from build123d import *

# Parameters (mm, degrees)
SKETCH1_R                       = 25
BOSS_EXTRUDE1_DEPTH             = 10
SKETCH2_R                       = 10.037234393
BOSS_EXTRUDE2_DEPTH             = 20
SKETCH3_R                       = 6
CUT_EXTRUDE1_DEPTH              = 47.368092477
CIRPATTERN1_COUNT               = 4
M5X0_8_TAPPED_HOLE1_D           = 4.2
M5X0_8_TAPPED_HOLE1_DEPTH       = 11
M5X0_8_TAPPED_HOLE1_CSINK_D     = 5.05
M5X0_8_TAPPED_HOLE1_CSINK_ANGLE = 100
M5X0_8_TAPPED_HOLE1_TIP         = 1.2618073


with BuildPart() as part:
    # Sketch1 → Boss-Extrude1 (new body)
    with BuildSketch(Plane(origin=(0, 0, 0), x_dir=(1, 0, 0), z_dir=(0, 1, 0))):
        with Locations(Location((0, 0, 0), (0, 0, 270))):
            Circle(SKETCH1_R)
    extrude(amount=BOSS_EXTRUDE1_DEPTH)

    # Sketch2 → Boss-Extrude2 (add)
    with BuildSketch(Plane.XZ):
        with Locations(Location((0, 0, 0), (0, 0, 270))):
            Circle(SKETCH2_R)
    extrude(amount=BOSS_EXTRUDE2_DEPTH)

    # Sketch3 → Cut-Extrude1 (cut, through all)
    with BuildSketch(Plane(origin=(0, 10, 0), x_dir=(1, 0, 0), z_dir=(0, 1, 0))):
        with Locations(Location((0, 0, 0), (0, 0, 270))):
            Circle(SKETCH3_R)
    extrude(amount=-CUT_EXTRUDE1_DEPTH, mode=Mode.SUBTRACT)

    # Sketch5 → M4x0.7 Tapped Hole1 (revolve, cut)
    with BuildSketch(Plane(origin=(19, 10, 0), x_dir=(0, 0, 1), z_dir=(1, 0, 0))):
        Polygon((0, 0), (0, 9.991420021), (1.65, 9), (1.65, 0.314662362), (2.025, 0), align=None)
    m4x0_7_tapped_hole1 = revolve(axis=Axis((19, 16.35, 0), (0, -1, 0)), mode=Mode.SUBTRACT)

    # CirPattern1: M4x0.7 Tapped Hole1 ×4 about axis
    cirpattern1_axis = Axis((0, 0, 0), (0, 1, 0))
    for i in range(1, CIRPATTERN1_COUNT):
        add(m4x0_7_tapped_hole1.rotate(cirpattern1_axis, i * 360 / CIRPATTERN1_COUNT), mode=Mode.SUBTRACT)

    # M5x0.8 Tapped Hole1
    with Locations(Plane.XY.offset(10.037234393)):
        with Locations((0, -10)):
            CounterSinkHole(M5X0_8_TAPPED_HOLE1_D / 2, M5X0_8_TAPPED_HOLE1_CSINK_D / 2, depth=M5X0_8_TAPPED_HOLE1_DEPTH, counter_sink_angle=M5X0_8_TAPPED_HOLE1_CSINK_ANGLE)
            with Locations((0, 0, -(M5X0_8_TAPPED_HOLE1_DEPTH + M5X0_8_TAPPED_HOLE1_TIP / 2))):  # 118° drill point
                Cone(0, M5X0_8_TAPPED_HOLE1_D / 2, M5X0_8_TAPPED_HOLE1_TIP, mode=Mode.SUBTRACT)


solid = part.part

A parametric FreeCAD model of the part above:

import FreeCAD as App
import Part
import Sketcher
Q = App.Units.Quantity

doc = App.newDocument("Part")
params = doc.addObject("Spreadsheet::Sheet", "Params")
for row, (alias, value) in enumerate([
    ("sketch1_diameter", "50 mm"),
    ("pad1_length", "10 mm"),
    ("pad2_length", "20 mm"),
    ("sketch3_diameter", "12 mm"),
    ("groove_angle", "360 deg"),
    ("sketch5_diameter", "4.2 mm"),
    ("hole_diameter", "4.2 mm"),
    ("hole_depth", "11 mm"),
    ("hole_csink_diameter", "5.05 mm"),
], start=1):
    params.set(f"A{row}", alias)
    params.set(f"B{row}", "=" + value)
    params.setAlias(f"B{row}", alias)

body = doc.addObject("PartDesign::Body", "Body")

sketch1 = doc.addObject("Sketcher::SketchObject", "Sketch")
body.addObject(sketch1)
sketch1.AttachmentSupport = (doc.XZ_Plane, [""])
sketch1.MapMode = "FlatFace"
sketch1.addGeometry(Part.Circle(App.Vector(0, 0, 0), App.Vector(0, 0, 1), 25), False)
sketch1.addConstraint([
    Sketcher.Constraint("Coincident", 0, 3, -1, 1),
    Sketcher.Constraint("Diameter", 0, 50.0),
])
sketch1.setExpression("Constraints[1]", "Params.sketch1_diameter")
pad1 = doc.addObject("PartDesign::Pad", "Pad")
body.addObject(pad1)
pad1.Profile = sketch1
pad1.setExpression("Length", "Params.pad1_length")
pad1.Reversed = True

sketch2 = doc.addObject("Sketcher::SketchObject", "Sketch001")
body.addObject(sketch2)
sketch2.AttachmentSupport = (doc.XZ_Plane, [""])
sketch2.MapMode = "FlatFace"
sketch2.addGeometry(Part.Circle(App.Vector(0, 0, 0), App.Vector(0, 0, 1), 10.037234), False)
sketch2.addConstraint([
    Sketcher.Constraint("Coincident", 0, 3, -1, 1),
    Sketcher.Constraint("Diameter", 0, 20.074469),
])
pad2 = doc.addObject("PartDesign::Pad", "Pad001")
body.addObject(pad2)
pad2.Profile = sketch2
pad2.setExpression("Length", "Params.pad2_length")

sketch3 = doc.addObject("Sketcher::SketchObject", "Sketch002")
body.addObject(sketch3)
sketch3.AttachmentSupport = (doc.XZ_Plane, [""])
sketch3.MapMode = "FlatFace"
sketch3.AttachmentOffset = App.Placement(App.Vector(0, 0, -10), App.Rotation())
sketch3.addGeometry(Part.Circle(App.Vector(0, 0, 0), App.Vector(0, 0, 1), 6), False)
sketch3.addConstraint([
    Sketcher.Constraint("Coincident", 0, 3, -1, 1),
    Sketcher.Constraint("Diameter", 0, 12.0),
])
sketch3.setExpression("Constraints[1]", "Params.sketch3_diameter")
pocket1 = doc.addObject("PartDesign::Pocket", "Pocket")
body.addObject(pocket1)
pocket1.Profile = sketch3
pocket1.Type = "ThroughAll"
pocket1.Reversed = True

sketch4 = doc.addObject("Sketcher::SketchObject", "Sketch003")
body.addObject(sketch4)
sketch4.AttachmentSupport = (doc.YZ_Plane, [""])
sketch4.MapMode = "FlatFace"
sketch4.AttachmentOffset = App.Placement(App.Vector(0, 0, 19), App.Rotation())
sketch4.addGeometry([
    Part.LineSegment(App.Vector(0.00858, 0, 0), App.Vector(10, 0, 0)),
    Part.LineSegment(App.Vector(10, 0, 0), App.Vector(10, 2.025, 0)),
    Part.LineSegment(App.Vector(10, 2.025, 0), App.Vector(9.685338, 1.65, 0)),
    Part.LineSegment(App.Vector(9.685338, 1.65, 0), App.Vector(1, 1.65, 0)),
    Part.LineSegment(App.Vector(1, 1.65, 0), App.Vector(0.00858, 0, 0)),
], False)
sketch4.addConstraint([
    Sketcher.Constraint("Coincident", 0, 2, 1, 1),
    Sketcher.Constraint("Coincident", 1, 2, 2, 1),
    Sketcher.Constraint("Coincident", 2, 2, 3, 1),
    Sketcher.Constraint("Coincident", 3, 2, 4, 1),
    Sketcher.Constraint("Coincident", 4, 2, 0, 1),
    Sketcher.Constraint("Horizontal", 0),
    Sketcher.Constraint("Vertical", 1),
    Sketcher.Constraint("Horizontal", 3),
    Sketcher.Constraint("PointOnObject", 0, 2, -1),
    Sketcher.Constraint("Angle", 2, Q("-130 deg")),
    Sketcher.Constraint("Angle", 4, Q("-121 deg")),
    Sketcher.Constraint("DistanceX", -1, 1, 0, 2, 10.0),
    Sketcher.Constraint("DistanceX", -1, 1, 3, 2, 1.0),
    Sketcher.Constraint("DistanceY", 1, 1, 1, 2, 2.025),
    Sketcher.Constraint("DistanceY", -1, 1, 2, 2, 1.65),
])
groove = doc.addObject("PartDesign::Groove", "Groove")
body.addObject(groove)
groove.Profile = sketch4
groove.ReferenceAxis = (sketch4, ["H_Axis"])
groove.setExpression("Angle", "Params.groove_angle")
doc.recompute()

polarpattern = doc.addObject("PartDesign::PolarPattern", "PolarPattern")
body.addObject(polarpattern)
polarpattern.Originals = [groove]
polarpattern.Axis = (doc.Y_Axis, [""])
polarpattern.Angle = 360
polarpattern.Occurrences = 4
body.Tip = polarpattern

sketch5 = doc.addObject("Sketcher::SketchObject", "Sketch004")
body.addObject(sketch5)
sketch5.AttachmentSupport = (doc.XY_Plane, [""])
sketch5.MapMode = "FlatFace"
sketch5.AttachmentOffset = App.Placement(App.Vector(0, 0, 10.037234), App.Rotation())
sketch5.addGeometry(Part.Circle(App.Vector(0, -10, 0), App.Vector(0, 0, 1), 2.1), False)
sketch5.addConstraint([
    Sketcher.Constraint("PointOnObject", 0, 3, -2),
    Sketcher.Constraint("Diameter", 0, 4.2),
    Sketcher.Constraint("DistanceY", 0, 3, -1, 1, 10.0),
])
sketch5.setExpression("Constraints[1]", "Params.sketch5_diameter")
doc.recompute()
hole = doc.addObject("PartDesign::Hole", "Hole")
body.addObject(hole)
hole.Profile = sketch5
hole.ThreadType = "None"
hole.setExpression("Diameter", "Params.hole_diameter")
hole.DepthType = "Dimension"
hole.setExpression("Depth", "Params.hole_depth")
hole.DrillPoint = "Angled"
hole.DrillPointAngle = 118
hole.HoleCutType = "Countersink"
hole.setExpression("HoleCutDiameter", "Params.hole_csink_diameter")
hole.HoleCutCountersinkAngle = 100

doc.recompute()
